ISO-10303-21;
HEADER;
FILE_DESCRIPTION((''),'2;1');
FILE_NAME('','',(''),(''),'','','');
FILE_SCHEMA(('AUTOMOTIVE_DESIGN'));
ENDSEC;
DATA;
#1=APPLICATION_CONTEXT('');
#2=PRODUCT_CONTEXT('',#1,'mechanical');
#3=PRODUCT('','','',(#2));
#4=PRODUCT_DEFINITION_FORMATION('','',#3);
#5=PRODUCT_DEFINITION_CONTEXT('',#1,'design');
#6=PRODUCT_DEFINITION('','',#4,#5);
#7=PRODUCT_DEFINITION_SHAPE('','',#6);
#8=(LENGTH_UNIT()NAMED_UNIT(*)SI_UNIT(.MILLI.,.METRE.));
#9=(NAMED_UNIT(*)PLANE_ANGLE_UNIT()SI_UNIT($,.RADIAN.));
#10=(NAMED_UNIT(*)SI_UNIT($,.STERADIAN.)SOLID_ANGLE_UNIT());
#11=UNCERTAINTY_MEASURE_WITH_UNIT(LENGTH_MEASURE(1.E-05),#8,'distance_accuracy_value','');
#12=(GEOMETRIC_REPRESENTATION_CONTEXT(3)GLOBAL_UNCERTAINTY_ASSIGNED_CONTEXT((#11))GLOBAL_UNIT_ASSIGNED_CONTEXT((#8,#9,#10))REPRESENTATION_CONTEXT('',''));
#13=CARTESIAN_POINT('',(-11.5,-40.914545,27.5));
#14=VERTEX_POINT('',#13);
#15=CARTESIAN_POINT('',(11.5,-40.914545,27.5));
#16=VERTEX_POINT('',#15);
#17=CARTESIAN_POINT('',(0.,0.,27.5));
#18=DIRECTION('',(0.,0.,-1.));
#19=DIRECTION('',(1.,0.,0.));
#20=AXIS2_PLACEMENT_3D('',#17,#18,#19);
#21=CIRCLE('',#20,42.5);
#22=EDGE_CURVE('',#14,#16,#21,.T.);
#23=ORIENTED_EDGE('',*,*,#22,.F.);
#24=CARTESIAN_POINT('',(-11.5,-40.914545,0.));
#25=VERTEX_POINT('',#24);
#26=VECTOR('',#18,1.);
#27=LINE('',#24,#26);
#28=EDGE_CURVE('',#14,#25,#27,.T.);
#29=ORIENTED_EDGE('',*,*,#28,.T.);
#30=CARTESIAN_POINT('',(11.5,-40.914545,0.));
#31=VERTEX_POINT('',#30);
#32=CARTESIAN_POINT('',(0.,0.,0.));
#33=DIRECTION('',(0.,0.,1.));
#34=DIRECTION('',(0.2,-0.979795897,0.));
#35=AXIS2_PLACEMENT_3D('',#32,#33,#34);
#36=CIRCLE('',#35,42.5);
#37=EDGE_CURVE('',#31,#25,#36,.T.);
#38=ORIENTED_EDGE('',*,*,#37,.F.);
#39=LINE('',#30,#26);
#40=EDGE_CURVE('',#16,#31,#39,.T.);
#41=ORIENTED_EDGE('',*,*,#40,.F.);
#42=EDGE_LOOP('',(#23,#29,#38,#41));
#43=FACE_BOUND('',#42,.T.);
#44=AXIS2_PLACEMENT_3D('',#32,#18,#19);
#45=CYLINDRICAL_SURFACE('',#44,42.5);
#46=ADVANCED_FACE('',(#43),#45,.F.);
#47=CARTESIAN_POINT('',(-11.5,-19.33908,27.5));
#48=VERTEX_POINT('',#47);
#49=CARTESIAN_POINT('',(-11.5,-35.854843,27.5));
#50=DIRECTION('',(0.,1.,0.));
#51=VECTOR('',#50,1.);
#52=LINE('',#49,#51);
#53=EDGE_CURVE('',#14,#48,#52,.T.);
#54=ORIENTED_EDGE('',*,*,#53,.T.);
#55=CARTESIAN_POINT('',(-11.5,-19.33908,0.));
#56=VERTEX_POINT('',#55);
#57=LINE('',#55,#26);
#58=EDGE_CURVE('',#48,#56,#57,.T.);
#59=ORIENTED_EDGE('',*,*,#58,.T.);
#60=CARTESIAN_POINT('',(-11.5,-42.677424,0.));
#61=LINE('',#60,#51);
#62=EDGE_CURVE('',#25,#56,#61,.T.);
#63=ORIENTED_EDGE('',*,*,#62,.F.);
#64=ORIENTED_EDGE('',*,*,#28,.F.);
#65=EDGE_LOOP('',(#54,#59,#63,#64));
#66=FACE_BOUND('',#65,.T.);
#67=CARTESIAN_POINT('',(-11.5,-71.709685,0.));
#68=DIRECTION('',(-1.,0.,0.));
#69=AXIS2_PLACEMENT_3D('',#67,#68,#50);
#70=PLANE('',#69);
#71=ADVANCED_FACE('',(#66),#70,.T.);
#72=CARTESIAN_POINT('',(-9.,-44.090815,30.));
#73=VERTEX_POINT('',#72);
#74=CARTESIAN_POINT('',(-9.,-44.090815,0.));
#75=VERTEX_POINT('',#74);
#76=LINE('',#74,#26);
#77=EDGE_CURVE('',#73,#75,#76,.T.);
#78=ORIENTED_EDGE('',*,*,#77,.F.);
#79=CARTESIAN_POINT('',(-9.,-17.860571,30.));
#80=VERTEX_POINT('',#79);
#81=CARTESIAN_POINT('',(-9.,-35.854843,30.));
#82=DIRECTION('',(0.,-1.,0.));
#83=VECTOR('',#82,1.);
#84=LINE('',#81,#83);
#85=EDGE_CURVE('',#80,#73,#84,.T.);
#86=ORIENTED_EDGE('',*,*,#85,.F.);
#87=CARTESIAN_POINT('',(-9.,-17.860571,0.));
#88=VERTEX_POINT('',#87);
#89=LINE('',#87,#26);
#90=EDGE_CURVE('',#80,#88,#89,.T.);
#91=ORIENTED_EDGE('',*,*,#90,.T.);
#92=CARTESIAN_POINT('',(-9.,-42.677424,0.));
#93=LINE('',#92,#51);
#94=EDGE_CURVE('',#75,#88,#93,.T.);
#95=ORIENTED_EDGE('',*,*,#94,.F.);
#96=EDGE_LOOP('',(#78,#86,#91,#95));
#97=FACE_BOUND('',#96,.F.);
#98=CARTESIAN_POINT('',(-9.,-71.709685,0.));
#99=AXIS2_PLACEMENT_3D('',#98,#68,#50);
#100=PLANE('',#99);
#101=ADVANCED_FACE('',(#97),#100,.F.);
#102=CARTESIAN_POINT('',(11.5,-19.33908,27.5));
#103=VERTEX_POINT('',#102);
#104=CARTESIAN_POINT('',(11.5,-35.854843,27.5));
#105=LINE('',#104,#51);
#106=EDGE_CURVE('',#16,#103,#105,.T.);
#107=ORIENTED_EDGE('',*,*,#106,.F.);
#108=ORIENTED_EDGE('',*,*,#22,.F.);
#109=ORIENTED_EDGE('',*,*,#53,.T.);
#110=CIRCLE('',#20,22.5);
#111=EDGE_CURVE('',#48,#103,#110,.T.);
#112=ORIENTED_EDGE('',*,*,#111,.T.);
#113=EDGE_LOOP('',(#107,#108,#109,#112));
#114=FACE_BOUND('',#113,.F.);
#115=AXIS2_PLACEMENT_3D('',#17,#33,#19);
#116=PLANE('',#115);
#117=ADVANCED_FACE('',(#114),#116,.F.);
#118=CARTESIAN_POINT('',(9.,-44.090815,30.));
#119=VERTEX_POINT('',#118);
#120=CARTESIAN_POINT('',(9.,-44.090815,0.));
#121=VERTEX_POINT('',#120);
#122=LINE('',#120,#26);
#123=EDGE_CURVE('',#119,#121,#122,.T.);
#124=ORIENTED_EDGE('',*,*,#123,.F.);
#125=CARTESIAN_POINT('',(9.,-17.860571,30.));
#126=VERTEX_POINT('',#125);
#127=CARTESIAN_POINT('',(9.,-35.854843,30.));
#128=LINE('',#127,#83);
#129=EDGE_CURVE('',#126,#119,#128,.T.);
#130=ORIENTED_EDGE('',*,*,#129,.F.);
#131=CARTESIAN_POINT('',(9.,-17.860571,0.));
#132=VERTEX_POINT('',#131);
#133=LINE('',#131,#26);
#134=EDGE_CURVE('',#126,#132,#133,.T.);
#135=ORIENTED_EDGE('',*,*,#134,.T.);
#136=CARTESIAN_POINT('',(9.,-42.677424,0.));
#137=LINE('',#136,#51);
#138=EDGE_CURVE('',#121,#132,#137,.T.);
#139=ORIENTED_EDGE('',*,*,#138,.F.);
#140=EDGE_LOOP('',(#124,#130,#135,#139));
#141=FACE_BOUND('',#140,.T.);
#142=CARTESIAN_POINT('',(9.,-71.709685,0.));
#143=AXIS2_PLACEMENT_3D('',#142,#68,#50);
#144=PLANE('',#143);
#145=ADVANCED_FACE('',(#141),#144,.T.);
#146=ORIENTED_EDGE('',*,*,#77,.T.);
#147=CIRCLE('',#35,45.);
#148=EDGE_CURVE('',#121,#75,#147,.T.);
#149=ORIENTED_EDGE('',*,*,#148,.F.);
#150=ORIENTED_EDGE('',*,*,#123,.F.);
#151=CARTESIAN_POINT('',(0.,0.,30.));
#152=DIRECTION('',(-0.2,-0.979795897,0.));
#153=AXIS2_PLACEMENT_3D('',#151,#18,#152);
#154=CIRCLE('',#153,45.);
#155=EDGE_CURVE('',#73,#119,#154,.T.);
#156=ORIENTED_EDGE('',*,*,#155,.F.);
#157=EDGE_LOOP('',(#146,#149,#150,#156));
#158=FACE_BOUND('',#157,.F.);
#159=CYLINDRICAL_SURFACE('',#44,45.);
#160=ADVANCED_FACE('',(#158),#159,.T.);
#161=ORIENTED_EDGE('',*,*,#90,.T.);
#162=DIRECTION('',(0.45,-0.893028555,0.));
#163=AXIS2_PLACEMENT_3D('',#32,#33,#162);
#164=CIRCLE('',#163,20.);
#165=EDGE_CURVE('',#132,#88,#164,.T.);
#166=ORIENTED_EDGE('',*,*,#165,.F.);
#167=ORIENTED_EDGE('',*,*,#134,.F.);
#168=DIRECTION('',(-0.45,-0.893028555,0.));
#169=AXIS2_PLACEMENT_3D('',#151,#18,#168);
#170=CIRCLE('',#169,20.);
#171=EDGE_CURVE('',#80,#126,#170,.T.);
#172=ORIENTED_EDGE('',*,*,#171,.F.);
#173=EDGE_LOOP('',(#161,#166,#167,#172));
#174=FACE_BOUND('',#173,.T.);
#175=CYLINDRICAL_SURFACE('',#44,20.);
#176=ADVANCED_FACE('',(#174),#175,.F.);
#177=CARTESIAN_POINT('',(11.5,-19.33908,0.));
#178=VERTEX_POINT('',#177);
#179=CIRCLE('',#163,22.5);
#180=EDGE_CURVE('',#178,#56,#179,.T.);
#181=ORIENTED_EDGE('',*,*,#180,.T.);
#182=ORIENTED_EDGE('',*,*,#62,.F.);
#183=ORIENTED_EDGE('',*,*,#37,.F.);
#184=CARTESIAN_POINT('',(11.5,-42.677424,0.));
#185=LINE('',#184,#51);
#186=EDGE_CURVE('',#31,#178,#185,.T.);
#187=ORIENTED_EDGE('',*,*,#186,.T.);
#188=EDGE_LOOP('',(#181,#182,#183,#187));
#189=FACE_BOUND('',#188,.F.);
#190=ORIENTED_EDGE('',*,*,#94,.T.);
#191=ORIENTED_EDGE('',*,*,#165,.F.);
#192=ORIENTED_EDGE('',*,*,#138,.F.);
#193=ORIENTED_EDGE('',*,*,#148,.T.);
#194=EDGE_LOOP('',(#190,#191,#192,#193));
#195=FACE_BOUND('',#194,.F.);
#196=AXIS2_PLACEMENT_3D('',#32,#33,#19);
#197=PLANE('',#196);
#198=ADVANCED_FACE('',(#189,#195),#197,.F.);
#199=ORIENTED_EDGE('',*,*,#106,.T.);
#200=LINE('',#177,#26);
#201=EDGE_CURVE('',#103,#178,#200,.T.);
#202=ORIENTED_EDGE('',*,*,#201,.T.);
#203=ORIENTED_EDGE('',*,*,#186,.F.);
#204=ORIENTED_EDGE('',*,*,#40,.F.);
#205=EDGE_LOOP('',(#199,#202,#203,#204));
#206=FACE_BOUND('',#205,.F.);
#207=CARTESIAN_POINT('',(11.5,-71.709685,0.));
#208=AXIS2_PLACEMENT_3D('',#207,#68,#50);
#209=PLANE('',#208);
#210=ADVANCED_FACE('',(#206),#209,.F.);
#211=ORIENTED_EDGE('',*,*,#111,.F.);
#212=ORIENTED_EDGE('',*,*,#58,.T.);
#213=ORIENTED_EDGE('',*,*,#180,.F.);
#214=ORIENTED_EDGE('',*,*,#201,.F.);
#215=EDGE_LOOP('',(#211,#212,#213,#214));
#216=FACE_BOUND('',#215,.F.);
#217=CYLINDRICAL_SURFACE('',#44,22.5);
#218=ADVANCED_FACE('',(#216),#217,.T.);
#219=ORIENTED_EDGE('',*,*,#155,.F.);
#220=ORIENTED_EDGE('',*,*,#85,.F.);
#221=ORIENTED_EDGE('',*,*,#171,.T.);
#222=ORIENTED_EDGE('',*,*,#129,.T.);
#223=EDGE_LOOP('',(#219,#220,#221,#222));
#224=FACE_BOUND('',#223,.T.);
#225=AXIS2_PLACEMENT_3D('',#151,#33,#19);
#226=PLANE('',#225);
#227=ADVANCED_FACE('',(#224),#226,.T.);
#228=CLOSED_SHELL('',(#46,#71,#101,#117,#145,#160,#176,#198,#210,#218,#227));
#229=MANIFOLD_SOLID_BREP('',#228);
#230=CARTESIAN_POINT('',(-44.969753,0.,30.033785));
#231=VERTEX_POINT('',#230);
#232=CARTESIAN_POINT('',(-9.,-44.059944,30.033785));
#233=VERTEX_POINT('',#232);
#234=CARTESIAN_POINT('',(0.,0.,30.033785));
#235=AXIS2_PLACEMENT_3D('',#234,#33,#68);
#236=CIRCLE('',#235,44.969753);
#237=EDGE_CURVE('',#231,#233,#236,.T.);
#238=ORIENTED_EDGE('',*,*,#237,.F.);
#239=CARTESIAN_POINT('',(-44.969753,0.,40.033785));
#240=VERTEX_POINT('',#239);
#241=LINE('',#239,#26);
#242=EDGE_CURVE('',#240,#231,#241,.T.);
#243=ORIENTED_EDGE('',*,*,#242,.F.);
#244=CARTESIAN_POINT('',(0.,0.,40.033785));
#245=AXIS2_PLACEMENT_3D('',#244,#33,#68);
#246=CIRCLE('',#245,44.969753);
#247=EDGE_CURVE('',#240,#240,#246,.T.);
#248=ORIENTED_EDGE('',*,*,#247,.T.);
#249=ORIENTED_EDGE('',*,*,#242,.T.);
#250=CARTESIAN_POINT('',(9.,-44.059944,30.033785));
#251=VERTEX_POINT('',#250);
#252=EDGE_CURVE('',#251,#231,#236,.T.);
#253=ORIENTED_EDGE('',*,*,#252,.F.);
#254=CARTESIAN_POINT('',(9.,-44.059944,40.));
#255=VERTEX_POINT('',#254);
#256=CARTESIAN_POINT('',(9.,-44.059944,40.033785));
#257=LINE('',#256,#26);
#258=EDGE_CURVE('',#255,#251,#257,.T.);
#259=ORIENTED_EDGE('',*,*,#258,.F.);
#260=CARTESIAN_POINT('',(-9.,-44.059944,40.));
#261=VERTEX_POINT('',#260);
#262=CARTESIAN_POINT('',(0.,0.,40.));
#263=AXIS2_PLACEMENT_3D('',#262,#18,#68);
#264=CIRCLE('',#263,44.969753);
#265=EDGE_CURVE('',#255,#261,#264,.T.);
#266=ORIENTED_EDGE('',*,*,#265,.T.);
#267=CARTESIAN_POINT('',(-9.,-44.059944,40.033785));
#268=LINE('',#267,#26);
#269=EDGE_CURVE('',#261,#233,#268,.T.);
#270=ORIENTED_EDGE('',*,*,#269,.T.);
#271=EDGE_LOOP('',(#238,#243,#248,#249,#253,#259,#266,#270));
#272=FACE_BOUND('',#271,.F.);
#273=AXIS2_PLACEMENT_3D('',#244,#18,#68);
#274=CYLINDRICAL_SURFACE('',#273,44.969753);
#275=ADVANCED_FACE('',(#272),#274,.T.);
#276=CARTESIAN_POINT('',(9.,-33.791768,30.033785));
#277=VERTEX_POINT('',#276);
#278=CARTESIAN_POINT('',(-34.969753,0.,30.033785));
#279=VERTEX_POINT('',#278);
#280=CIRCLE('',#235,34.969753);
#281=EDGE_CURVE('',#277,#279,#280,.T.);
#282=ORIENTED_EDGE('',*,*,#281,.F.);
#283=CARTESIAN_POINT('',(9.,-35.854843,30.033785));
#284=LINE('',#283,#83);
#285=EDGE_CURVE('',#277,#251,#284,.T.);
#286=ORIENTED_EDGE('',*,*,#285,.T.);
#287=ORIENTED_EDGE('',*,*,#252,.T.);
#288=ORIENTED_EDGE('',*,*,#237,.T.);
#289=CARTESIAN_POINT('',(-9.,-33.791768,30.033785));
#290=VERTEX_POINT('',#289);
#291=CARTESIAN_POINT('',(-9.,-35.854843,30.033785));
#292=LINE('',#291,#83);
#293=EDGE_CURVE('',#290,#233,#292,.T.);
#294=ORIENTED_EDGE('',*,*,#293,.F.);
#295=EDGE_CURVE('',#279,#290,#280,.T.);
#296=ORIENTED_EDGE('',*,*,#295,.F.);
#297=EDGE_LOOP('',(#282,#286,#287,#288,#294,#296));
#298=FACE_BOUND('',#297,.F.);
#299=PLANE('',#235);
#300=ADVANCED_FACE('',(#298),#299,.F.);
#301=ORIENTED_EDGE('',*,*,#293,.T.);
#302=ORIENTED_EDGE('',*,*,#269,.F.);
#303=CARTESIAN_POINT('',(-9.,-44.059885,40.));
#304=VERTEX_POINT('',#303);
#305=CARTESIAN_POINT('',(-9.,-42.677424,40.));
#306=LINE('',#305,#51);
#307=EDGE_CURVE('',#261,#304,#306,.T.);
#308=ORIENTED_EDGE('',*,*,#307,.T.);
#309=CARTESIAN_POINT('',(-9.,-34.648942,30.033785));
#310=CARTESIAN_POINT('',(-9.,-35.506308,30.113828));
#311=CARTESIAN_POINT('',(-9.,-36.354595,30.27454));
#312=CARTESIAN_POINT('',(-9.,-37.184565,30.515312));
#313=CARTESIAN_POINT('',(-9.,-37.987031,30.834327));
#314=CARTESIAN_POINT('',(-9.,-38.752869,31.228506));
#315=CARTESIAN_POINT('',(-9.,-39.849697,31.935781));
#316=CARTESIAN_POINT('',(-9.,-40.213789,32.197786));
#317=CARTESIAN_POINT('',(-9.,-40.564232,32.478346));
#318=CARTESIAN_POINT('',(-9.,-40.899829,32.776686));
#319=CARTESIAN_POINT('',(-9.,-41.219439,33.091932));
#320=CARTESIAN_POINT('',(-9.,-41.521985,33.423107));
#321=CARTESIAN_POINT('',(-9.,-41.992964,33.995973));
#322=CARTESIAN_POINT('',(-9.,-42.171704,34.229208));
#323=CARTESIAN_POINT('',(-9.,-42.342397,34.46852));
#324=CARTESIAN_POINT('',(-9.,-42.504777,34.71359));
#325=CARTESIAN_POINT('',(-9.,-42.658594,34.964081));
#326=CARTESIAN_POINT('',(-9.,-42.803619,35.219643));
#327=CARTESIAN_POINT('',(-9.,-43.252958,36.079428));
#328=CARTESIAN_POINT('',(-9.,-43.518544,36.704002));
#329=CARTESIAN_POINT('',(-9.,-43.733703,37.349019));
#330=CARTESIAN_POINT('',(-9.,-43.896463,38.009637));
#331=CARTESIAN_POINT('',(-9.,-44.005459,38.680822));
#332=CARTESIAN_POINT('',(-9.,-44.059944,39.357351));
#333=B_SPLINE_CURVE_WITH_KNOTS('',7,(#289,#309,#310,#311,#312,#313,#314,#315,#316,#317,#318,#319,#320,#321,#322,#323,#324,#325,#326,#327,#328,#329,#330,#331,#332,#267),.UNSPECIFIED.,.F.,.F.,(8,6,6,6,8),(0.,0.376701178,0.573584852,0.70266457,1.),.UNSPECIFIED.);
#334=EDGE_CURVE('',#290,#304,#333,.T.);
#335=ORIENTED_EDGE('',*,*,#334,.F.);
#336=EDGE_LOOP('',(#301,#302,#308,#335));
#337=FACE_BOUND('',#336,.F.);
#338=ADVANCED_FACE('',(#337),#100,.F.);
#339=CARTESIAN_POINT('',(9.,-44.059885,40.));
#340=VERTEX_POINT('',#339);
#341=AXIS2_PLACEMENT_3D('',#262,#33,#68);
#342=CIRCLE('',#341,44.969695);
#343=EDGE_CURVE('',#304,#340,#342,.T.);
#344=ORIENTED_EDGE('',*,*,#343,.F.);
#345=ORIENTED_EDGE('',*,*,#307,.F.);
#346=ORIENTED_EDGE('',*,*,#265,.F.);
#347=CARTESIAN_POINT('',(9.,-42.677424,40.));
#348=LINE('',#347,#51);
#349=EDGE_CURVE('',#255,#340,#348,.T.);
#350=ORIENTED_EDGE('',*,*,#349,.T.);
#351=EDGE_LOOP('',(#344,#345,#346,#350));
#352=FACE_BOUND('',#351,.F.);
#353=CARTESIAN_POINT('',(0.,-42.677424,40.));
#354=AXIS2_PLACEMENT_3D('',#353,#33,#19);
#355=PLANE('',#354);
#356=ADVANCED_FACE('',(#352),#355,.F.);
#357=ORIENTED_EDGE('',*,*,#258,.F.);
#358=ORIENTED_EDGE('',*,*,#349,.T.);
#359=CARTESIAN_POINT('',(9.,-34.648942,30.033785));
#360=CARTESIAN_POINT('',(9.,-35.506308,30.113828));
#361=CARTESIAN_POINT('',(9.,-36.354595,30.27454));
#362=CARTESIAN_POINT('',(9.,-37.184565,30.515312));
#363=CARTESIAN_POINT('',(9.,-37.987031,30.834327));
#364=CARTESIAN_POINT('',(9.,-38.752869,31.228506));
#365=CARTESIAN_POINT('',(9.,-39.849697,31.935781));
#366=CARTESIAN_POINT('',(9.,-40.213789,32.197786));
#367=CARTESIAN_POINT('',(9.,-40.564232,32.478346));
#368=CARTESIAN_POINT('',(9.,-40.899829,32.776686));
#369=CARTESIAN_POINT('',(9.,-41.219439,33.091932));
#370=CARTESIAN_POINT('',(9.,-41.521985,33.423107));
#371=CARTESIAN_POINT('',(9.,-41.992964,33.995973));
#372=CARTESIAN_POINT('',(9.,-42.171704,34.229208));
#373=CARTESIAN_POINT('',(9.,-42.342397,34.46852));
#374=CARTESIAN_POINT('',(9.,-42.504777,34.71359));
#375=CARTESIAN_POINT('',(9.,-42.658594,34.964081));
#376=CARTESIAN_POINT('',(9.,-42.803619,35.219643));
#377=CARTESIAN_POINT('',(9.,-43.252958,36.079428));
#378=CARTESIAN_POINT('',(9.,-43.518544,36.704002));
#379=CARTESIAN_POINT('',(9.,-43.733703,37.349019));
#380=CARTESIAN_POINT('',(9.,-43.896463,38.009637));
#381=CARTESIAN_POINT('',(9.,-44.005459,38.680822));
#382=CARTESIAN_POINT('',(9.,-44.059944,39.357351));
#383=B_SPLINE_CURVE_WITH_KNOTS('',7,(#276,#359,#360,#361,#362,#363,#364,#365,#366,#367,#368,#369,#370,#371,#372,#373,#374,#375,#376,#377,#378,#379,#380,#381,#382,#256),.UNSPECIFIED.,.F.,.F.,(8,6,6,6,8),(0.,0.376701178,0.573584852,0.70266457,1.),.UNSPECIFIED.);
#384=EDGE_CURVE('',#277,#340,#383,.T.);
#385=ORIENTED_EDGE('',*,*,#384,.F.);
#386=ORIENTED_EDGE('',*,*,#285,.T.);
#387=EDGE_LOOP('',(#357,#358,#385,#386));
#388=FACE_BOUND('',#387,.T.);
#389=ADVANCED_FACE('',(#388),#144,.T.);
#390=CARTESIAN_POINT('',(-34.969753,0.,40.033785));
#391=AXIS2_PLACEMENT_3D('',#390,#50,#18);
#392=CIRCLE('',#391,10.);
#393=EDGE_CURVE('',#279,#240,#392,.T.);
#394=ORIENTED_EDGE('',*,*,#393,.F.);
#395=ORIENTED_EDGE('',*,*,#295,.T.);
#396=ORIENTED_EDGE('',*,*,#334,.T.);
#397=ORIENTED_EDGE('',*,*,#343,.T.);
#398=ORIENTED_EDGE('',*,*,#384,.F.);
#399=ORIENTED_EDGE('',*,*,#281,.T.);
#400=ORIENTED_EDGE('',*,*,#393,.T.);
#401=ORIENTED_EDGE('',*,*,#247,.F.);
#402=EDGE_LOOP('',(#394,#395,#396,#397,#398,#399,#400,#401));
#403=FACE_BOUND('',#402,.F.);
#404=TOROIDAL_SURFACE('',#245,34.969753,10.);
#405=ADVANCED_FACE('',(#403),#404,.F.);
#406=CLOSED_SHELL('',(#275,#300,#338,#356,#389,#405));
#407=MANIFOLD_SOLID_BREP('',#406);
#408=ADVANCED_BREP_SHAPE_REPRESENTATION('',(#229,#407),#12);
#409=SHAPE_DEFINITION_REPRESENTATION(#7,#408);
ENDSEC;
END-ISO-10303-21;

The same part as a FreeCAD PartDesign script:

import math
import FreeCAD as App
import Part
import Sketcher
from FreeCAD import Vector
Q = App.Units.Quantity


def faces_at(feature, points):
    """Names of the faces that lie closest to the given points."""
    faces = feature.Shape.Faces
    near = lambda p: min(range(len(faces)), key=lambda i: faces[i].distToShape(Part.Vertex(*p))[0])
    return sorted({f"Face{near(p) + 1}" for p in points})


def add_polygon(sketch, points):
    """Adds a closed chain of lines whose ends are joined by coincident constraints."""
    first, n = sketch.GeometryCount, len(points)
    for a, b in zip(points, points[1:] + points[:1]):
        sketch.addGeometry(Part.LineSegment(App.Vector(*a, 0), App.Vector(*b, 0)), False)
    for i in range(n):
        sketch.addConstraint(Sketcher.Constraint("Coincident", first + i, 2, first + (i + 1) % n, 1))

doc = App.newDocument("Part")
body = doc.addObject("PartDesign::Body", "Body")

sketch1 = doc.addObject("Sketcher::SketchObject", "Sketch")
body.addObject(sketch1)
sketch1.AttachmentSupport = (doc.XY_Plane, [""])
sketch1.MapMode = "FlatFace"
sketch1.addGeometry(Part.Circle(Vector(0, 0, 0), Vector(0, 0, 1), 45), False)
sketch1.addConstraint([
    Sketcher.Constraint("Coincident", 0, 3, -1, 1),
    Sketcher.Constraint("Diameter", 0, Q("90 mm")),
])
pad1 = doc.addObject("PartDesign::Pad", "Pad")
body.addObject(pad1)
pad1.Profile = sketch1
pad1.Length = 30
body2 = doc.addObject("PartDesign::Body", "Body001")

sketch2 = doc.addObject("Sketcher::SketchObject", "Sketch001")
body2.addObject(sketch2)
sketch2.AttachmentSupport = (doc.getObject("XY_Plane001"), [""])
sketch2.MapMode = "FlatFace"
sketch2.addGeometry(Part.Circle(Vector(0, 0, 0), Vector(0, 0, 1), 20), False)
sketch2.addConstraint([
    Sketcher.Constraint("Coincident", 0, 3, -1, 1),
    Sketcher.Constraint("Diameter", 0, Q("40 mm")),
])
pad2 = doc.addObject("PartDesign::Pad", "Pad001")
body2.addObject(pad2)
pad2.Profile = sketch2
pad2.Length = 40
doc.recompute()

boolean = doc.addObject("PartDesign::Boolean", "Boolean")
body.addObject(boolean)
boolean.Type = "Cut"
boolean.addObjects([body2])
body3 = doc.addObject("PartDesign::Body", "Body002")

sketch3 = doc.addObject("Sketcher::SketchObject", "Sketch002")
body3.addObject(sketch3)
sketch3.AttachmentSupport = (doc.getObject("XZ_Plane002"), [""])
sketch3.MapMode = "FlatFace"
sketch3.addGeometry([
    Part.LineSegment(Vector(-45, 50, 0), Vector(-45, 40, 0)),
    Part.LineSegment(Vector(-45, 40, 0), Vector(-35, 40, 0)),
    Part.ArcOfCircle(Part.Circle(Vector(-35, 50, 0), Vector(0, 0, 1), 10), math.radians(180), math.radians(270)),
], False)
sketch3.addConstraint([
    Sketcher.Constraint("Coincident", 0, 2, 1, 1),
    Sketcher.Constraint("Tangent", 1, 2, 2, 2),
    Sketcher.Constraint("Tangent", 2, 1, 0, 1),
    Sketcher.Constraint("Vertical", 0),
    Sketcher.Constraint("Horizontal", 1),
    Sketcher.Constraint("Radius", 2, Q("10 mm")),
    Sketcher.Constraint("DistanceX", 2, 3, -1, 1, Q("34.969753 mm")),
    Sketcher.Constraint("DistanceY", -1, 1, 2, 3, Q("50.033785 mm")),
])
revolution = doc.addObject("PartDesign::Revolution", "Revolution")
body3.addObject(revolution)
revolution.Profile = sketch3
revolution.ReferenceAxis = (sketch3, ["V_Axis"])
revolution.Angle = 360
body4 = doc.addObject("PartDesign::Body", "Body003")
doc.recompute()

body3.Placement = App.Placement(Vector(0, 0, -10), App.Rotation(Vector(0, 0, 1), 0))
boolean2 = doc.addObject("PartDesign::Boolean", "Boolean001")
body4.addObject(boolean2)
boolean2.Type = "Fuse"
boolean2.addObjects([body3])
body5 = doc.addObject("PartDesign::Body", "Body004")

sketch4 = doc.addObject("Sketcher::SketchObject", "Sketch003")
body5.addObject(sketch4)
sketch4.AttachmentSupport = (doc.getObject("XY_Plane004"), [""])
sketch4.MapMode = "FlatFace"
add_polygon(sketch4, [(-9, -14), (-9, -72), (9, -72), (9, -14)])
sketch4.addConstraint([
    Sketcher.Constraint("Vertical", 0),
    Sketcher.Constraint("Horizontal", 1),
    Sketcher.Constraint("Vertical", 2),
    Sketcher.Constraint("Horizontal", 3),
    Sketcher.Constraint("DistanceX", 1, 1, 1, 2, Q("18 mm")),
    Sketcher.Constraint("DistanceX", 0, 2, -1, 1, Q("9 mm")),
    Sketcher.Constraint("DistanceY", 0, 2, 0, 1, Q("58.064524 mm")),
    Sketcher.Constraint("DistanceY", 2, 2, -1, 1, Q("13.645162 mm")),
])
pad3 = doc.addObject("PartDesign::Pad", "Pad002")
body5.addObject(pad3)
pad3.Profile = sketch4
pad3.Length = 40
doc.recompute()

body6 = doc.addObject("PartDesign::Body", "Body005")
body6.BaseFeature = body5
boolean3 = doc.addObject("PartDesign::Boolean", "Boolean002")
body.addObject(boolean3)
boolean3.Type = "Cut"
boolean3.addObjects([body6])
doc.recompute()

thickness = doc.addObject("PartDesign::Thickness", "Thickness")
body.addObject(thickness)
thickness.Base = (boolean3, faces_at(boolean3, [(-18, -17.364, 0)]))
thickness.Value = 2.5
thickness.Reversed = True
thickness.Join = "Arc"
doc.recompute()

boolean4 = doc.addObject("PartDesign::Boolean", "Boolean003")
body4.addObject(boolean4)
boolean4.Type = "Cut"
boolean4.addObjects([body5])

doc.recompute()
